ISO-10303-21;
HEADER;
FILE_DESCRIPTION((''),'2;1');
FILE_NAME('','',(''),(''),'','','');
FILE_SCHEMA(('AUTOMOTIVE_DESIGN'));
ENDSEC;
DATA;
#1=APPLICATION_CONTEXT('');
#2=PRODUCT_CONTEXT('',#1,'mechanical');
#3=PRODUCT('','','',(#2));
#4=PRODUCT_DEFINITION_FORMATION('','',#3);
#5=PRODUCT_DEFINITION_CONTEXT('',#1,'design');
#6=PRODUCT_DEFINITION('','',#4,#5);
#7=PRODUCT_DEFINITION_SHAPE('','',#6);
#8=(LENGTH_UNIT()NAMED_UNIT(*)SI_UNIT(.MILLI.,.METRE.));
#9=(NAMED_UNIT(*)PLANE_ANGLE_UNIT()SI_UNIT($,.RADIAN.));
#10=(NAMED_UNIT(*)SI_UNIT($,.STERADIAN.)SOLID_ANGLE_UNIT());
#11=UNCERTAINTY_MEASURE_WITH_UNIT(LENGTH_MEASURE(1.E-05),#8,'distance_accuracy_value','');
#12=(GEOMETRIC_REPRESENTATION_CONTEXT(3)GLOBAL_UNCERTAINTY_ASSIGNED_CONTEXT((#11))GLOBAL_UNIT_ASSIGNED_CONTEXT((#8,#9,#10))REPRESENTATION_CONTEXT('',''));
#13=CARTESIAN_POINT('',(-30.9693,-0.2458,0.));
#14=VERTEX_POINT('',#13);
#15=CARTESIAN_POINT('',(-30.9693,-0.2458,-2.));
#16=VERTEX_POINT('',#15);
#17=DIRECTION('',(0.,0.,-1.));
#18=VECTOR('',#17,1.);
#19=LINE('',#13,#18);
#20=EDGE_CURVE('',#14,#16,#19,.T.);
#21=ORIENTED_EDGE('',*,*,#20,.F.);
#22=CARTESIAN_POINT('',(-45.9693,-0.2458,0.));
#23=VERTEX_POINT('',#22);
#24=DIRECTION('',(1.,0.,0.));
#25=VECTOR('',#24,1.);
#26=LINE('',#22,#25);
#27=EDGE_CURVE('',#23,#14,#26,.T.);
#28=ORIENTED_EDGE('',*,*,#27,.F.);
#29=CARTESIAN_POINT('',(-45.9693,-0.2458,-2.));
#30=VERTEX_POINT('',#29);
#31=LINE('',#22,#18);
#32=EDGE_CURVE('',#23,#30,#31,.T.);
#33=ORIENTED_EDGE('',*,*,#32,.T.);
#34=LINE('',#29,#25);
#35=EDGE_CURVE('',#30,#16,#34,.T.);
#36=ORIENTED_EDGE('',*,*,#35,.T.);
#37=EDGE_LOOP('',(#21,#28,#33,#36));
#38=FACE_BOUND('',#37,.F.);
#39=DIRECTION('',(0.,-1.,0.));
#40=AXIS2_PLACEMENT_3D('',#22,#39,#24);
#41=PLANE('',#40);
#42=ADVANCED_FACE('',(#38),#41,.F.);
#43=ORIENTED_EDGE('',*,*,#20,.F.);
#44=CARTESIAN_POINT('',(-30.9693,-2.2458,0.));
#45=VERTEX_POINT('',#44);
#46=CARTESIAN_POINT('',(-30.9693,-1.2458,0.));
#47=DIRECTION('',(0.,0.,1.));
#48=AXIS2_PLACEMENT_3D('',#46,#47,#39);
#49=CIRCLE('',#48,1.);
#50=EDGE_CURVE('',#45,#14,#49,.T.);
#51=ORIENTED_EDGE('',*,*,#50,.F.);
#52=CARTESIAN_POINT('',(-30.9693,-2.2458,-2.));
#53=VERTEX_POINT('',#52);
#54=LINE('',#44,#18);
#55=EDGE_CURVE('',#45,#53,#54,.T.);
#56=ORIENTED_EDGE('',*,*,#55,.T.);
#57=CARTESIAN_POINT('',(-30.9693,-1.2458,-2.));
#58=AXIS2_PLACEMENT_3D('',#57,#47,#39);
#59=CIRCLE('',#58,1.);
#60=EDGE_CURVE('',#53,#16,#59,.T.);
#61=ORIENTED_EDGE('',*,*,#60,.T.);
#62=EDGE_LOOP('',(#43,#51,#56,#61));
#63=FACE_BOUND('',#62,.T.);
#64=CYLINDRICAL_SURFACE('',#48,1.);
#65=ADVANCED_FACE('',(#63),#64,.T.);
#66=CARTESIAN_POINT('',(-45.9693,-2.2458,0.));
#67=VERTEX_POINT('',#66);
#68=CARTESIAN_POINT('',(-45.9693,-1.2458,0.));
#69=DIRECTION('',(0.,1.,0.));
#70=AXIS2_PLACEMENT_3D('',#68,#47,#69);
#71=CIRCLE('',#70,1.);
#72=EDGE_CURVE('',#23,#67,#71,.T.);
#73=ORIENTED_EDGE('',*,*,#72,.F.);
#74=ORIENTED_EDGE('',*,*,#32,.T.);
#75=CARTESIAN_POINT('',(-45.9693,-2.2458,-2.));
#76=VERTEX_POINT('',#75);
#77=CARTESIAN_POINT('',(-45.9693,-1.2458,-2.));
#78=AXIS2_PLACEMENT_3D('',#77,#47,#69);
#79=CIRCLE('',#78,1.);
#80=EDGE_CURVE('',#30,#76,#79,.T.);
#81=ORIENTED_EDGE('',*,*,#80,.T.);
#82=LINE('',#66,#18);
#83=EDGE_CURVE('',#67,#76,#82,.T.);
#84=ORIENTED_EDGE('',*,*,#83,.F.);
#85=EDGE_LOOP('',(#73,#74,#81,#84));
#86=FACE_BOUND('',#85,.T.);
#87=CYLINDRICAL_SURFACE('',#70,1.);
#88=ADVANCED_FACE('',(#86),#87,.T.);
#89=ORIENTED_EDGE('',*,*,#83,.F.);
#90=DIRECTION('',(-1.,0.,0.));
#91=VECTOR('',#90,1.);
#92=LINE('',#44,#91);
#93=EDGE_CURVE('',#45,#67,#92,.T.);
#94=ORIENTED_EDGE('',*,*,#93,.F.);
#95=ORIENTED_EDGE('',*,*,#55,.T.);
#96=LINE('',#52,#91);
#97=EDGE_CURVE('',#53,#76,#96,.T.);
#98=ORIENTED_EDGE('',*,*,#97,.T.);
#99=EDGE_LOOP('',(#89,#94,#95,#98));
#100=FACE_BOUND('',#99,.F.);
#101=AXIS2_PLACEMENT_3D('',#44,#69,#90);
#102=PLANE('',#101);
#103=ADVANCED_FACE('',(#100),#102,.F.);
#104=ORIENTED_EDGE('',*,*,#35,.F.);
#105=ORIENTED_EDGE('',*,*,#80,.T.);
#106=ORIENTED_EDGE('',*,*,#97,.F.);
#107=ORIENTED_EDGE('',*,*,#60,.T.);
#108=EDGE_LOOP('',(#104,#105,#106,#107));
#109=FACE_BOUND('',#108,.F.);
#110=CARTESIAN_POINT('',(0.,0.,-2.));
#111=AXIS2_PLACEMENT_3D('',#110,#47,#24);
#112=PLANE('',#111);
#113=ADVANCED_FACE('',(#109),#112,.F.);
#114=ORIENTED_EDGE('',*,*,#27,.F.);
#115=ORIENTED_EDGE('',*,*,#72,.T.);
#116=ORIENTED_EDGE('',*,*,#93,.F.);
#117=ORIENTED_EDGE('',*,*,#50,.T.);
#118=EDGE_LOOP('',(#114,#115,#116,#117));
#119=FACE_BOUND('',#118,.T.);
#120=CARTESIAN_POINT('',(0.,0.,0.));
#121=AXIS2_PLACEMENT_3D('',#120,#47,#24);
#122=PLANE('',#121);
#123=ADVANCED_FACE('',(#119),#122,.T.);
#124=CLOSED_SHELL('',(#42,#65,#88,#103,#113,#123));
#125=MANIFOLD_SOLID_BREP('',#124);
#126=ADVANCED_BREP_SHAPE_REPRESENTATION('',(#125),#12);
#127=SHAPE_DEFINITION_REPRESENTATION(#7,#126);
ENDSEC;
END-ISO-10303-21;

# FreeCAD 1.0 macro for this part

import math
import FreeCAD as App
import Part
import Sketcher

doc = App.newDocument("Part")
params = doc.addObject("Spreadsheet::Sheet", "Params")
for row, (alias, value) in enumerate([
    ("sketch1_radius", "1 mm"),
    ("sketch1_width", "15 mm"),
    ("pad1_length", "2 mm"),
], start=1):
    params.set(f"A{row}", alias)
    params.set(f"B{row}", "=" + value)
    params.setAlias(f"B{row}", alias)

body = doc.addObject("PartDesign::Body", "Body")

# Sketch on XY plane
sketch1 = body.newObject("Sketcher::SketchObject", "Sketch")
sketch1.AttachmentSupport = (doc.getObject("XY_Plane"), [""])
sketch1.MapMode = "FlatFace"
sketch1.addGeometry([
    Part.LineSegment(App.Vector(-30.9693, -0.2458, 0), App.Vector(-45.9693, -0.2458, 0)),
    Part.ArcOfCircle(Part.Circle(App.Vector(-45.9693, -1.2458, 0), App.Vector(0, 0, 1), 1), math.radians(90), math.radians(270)),
    Part.LineSegment(App.Vector(-45.9693, -2.2458, 0), App.Vector(-30.9693, -2.2458, 0)),
    Part.ArcOfCircle(Part.Circle(App.Vector(-30.9693, -1.2458, 0), App.Vector(0, 0, 1), 1), math.radians(-90), math.radians(90)),
], False)
sketch1.addConstraint([
    Sketcher.Constraint("Tangent", 0, 2, 1, 1),
    Sketcher.Constraint("Tangent", 1, 2, 2, 1),
    Sketcher.Constraint("Tangent", 2, 2, 3, 1),
    Sketcher.Constraint("Tangent", 3, 2, 0, 1),
    Sketcher.Constraint("Horizontal", 0),
    Sketcher.Constraint("Horizontal", 2),
    Sketcher.Constraint("Radius", 1, 1.0),
    Sketcher.Constraint("DistanceX", 0, 2, 0, 1, 15.0),
    Sketcher.Constraint("DistanceX", 1, 3, -1, 1, 45.9693),
    Sketcher.Constraint("DistanceY", 1, 3, -1, 1, 1.2458),
])
sketch1.setExpression("Constraints[6]", "Params.sketch1_radius")
sketch1.setExpression("Constraints[7]", "Params.sketch1_width")
pad1 = body.newObject("PartDesign::Pad", "Pad")
pad1.Profile = sketch1
pad1.setExpression("Length", "Params.pad1_length")
pad1.Reversed = True

doc.recompute()
